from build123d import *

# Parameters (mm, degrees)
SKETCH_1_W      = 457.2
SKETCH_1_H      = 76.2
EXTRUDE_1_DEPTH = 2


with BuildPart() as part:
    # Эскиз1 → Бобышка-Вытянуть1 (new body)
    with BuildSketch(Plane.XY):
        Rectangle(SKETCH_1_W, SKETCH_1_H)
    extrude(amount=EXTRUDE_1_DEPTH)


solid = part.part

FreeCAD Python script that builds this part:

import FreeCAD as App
import Part
import Sketcher
from FreeCAD import Vector
Q = App.Units.Quantity

doc = App.newDocument("Part")
body = doc.addObject("PartDesign::Body", "Body")

# Sketch on XY plane
sketch1 = body.newObject("Sketcher::SketchObject", "Sketch")
sketch1.AttachmentSupport = (doc.getObject("XY_Plane"), [""])
sketch1.MapMode = "FlatFace"
sketch1.addGeometry([
    Part.LineSegment(Vector(-229, 38, 0), Vector(-229, -38, 0)),
    Part.LineSegment(Vector(-229, -38, 0), Vector(229, -38, 0)),
    Part.LineSegment(Vector(229, -38, 0), Vector(229, 38, 0)),
    Part.LineSegment(Vector(229, 38, 0), Vector(-229, 38, 0)),
], False)
sketch1.addConstraint([
    Sketcher.Constraint("Coincident", 0, 2, 1, 1),
    Sketcher.Constraint("Coincident", 1, 2, 2, 1),
    Sketcher.Constraint("Coincident", 2, 2, 3, 1),
    Sketcher.Constraint("Coincident", 3, 2, 0, 1),
    Sketcher.Constraint("Vertical", 0),
    Sketcher.Constraint("Horizontal", 1),
    Sketcher.Constraint("Vertical", 2),
    Sketcher.Constraint("Horizontal", 3),
    Sketcher.Constraint("Symmetric", 0, 2, 2, 2, -1, 1),
    Sketcher.Constraint("DistanceX", 1, 1, 1, 2, Q("18 in")),
    Sketcher.Constraint("DistanceY", 0, 2, 0, 1, Q("3 in")),
])
pad1 = body.newObject("PartDesign::Pad", "Pad")
pad1.Profile = sketch1
pad1.Length = 2

doc.recompute()
